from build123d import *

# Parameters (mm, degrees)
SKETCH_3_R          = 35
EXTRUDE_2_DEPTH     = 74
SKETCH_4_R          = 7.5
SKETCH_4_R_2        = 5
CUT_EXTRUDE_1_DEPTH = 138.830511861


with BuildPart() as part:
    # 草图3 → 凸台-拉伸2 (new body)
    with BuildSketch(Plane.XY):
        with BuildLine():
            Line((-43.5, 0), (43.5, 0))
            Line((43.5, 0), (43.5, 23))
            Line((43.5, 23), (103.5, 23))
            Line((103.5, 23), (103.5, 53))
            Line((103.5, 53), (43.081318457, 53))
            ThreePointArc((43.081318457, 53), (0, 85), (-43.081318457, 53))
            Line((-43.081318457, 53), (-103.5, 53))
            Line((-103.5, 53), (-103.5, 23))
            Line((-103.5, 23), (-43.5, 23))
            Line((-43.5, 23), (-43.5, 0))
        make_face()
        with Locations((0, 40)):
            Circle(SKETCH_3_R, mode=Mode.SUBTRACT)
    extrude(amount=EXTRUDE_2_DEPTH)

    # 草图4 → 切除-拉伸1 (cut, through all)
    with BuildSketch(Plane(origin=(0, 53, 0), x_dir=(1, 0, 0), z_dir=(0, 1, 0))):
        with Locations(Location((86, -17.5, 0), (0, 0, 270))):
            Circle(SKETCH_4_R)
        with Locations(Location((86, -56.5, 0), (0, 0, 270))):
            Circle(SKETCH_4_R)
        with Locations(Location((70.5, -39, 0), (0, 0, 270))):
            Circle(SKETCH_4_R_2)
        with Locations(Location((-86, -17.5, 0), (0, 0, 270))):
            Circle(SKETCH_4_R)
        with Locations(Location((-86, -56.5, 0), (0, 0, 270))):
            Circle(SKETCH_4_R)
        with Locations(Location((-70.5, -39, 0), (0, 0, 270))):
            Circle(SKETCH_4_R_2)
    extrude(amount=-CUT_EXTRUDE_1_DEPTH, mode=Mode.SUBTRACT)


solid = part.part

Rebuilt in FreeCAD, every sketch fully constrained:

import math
import FreeCAD as App
import Part
import Sketcher
Q = App.Units.Quantity

doc = App.newDocument("Part")
body = doc.addObject("PartDesign::Body", "Body")

# Sketch on XY plane
sketch1 = doc.addObject("Sketcher::SketchObject", "Sketch")
body.addObject(sketch1)
sketch1.AttachmentSupport = (doc.XY_Plane, [""])
sketch1.MapMode = "FlatFace"
sketch1.addGeometry([
    Part.LineSegment(App.Vector(-44, 0, 0), App.Vector(44, 0, 0)),  # 0
    Part.LineSegment(App.Vector(44, 0, 0), App.Vector(44, 23, 0)),  # 1
    Part.LineSegment(App.Vector(44, 23, 0), App.Vector(104, 23, 0)),  # 2
    Part.LineSegment(App.Vector(104, 23, 0), App.Vector(104, 53, 0)),  # 3
    Part.LineSegment(App.Vector(104, 53, 0), App.Vector(43, 53, 0)),  # 4
    Part.ArcOfCircle(Part.Circle(App.Vector(0, 40, 0), App.Vector(0, 0, 1), 45), math.radians(17), math.radians(163)),  # 5
    Part.LineSegment(App.Vector(-43, 53, 0), App.Vector(-104, 53, 0)),  # 6
    Part.LineSegment(App.Vector(-104, 53, 0), App.Vector(-104, 23, 0)),  # 7
    Part.LineSegment(App.Vector(-104, 23, 0), App.Vector(-44, 23, 0)),  # 8
    Part.LineSegment(App.Vector(-44, 23, 0), App.Vector(-44, 0, 0)),  # 9
    Part.Circle(App.Vector(0, 40, 0), App.Vector(0, 0, 1), 35),  # 10
], False)
sketch1.addConstraint([
    Sketcher.Constraint("Coincident", 0, 2, 1, 1),
    Sketcher.Constraint("Coincident", 1, 2, 2, 1),
    Sketcher.Constraint("Coincident", 2, 2, 3, 1),
    Sketcher.Constraint("Coincident", 3, 2, 4, 1),
    Sketcher.Constraint("Coincident", 4, 2, 5, 1),
    Sketcher.Constraint("Coincident", 5, 2, 6, 1),
    Sketcher.Constraint("Coincident", 6, 2, 7, 1),
    Sketcher.Constraint("Coincident", 7, 2, 8, 1),
    Sketcher.Constraint("Coincident", 8, 2, 9, 1),
    Sketcher.Constraint("Coincident", 9, 2, 0, 1),
    Sketcher.Constraint("Horizontal", 0),
    Sketcher.Constraint("Vertical", 1),
    Sketcher.Constraint("Horizontal", 2),
    Sketcher.Constraint("Vertical", 3),
    Sketcher.Constraint("Horizontal", 4),
    Sketcher.Constraint("Horizontal", 6),
    Sketcher.Constraint("Vertical", 7),
    Sketcher.Constraint("Horizontal", 8),
    Sketcher.Constraint("Vertical", 9),
    Sketcher.Constraint("Coincident", 10, 3, 5, 3),
    Sketcher.Constraint("Symmetric", 0, 2, 9, 2, -1, 1),
    Sketcher.Constraint("Symmetric", 4, 2, 5, 2, -2),
    Sketcher.Constraint("Symmetric", 2, 2, 7, 2, -2),
    Sketcher.Constraint("Diameter", 10, Q("70 mm")),
    Sketcher.Constraint("Radius", 5, Q("45 mm")),
    Sketcher.Constraint("DistanceX", 0, 1, 0, 2, Q("87 mm")),
    Sketcher.Constraint("DistanceX", 2, 1, 2, 2, Q("60 mm")),
    Sketcher.Constraint("DistanceY", 1, 1, 1, 2, Q("23 mm")),
    Sketcher.Constraint("DistanceY", 3, 1, 3, 2, Q("30 mm")),
    Sketcher.Constraint("DistanceY", -1, 1, 5, 3, Q("40 mm")),
])
pad1 = doc.addObject("PartDesign::Pad", "Pad")
body.addObject(pad1)
pad1.Profile = sketch1
pad1.Length = 74

# Sketch on XZ plane
sketch2 = doc.addObject("Sketcher::SketchObject", "Sketch001")
body.addObject(sketch2)
sketch2.AttachmentSupport = (doc.XZ_Plane, [""])
sketch2.MapMode = "FlatFace"
sketch2.AttachmentOffset = App.Placement(App.Vector(0, 0, -53), App.Rotation())
sketch2.addGeometry([
    Part.Circle(App.Vector(86, 18, 0), App.Vector(0, 0, 1), 8),  # 0
    Part.Circle(App.Vector(86, 56, 0), App.Vector(0, 0, 1), 8),  # 1
    Part.Circle(App.Vector(70, 39, 0), App.Vector(0, 0, 1), 5),  # 2
    Part.Circle(App.Vector(-86, 18, 0), App.Vector(0, 0, 1), 8),  # 3
    Part.Circle(App.Vector(-86, 56, 0), App.Vector(0, 0, 1), 8),  # 4
    Part.Circle(App.Vector(-70, 39, 0), App.Vector(0, 0, 1), 5),  # 5
], False)
sketch2.addConstraint([
    Sketcher.Constraint("Equal", 0, 1),
    Sketcher.Constraint("Equal", 1, 3),
    Sketcher.Constraint("Equal", 3, 4),
    Sketcher.Constraint("Equal", 2, 5),
    Sketcher.Constraint("Symmetric", 0, 3, 3, 3, -2),
    Sketcher.Constraint("Symmetric", 1, 3, 4, 3, -2),
    Sketcher.Constraint("Symmetric", 2, 3, 5, 3, -2),
    Sketcher.Constraint("Vertical", 0, 3, 1, 3),
    Sketcher.Constraint("Diameter", 0, Q("15 mm")),
    Sketcher.Constraint("Diameter", 2, Q("10 mm")),
    Sketcher.Constraint("DistanceX", -1, 1, 0, 3, Q("86 mm")),
    Sketcher.Constraint("DistanceY", -1, 1, 2, 3, Q("39 mm")),
    Sketcher.Constraint("DistanceY", 0, 3, 1, 3, Q("39 mm")),
    Sketcher.Constraint("DistanceX", 5, 3, 2, 3, Q("141 mm")),
    Sketcher.Constraint("DistanceY", -1, 1, 0, 3, Q("17.5 mm")),
])
pocket1 = doc.addObject("PartDesign::Pocket", "Pocket")
body.addObject(pocket1)
pocket1.Profile = sketch2
pocket1.Type = "ThroughAll"
pocket1.Reversed = True

doc.recompute()
